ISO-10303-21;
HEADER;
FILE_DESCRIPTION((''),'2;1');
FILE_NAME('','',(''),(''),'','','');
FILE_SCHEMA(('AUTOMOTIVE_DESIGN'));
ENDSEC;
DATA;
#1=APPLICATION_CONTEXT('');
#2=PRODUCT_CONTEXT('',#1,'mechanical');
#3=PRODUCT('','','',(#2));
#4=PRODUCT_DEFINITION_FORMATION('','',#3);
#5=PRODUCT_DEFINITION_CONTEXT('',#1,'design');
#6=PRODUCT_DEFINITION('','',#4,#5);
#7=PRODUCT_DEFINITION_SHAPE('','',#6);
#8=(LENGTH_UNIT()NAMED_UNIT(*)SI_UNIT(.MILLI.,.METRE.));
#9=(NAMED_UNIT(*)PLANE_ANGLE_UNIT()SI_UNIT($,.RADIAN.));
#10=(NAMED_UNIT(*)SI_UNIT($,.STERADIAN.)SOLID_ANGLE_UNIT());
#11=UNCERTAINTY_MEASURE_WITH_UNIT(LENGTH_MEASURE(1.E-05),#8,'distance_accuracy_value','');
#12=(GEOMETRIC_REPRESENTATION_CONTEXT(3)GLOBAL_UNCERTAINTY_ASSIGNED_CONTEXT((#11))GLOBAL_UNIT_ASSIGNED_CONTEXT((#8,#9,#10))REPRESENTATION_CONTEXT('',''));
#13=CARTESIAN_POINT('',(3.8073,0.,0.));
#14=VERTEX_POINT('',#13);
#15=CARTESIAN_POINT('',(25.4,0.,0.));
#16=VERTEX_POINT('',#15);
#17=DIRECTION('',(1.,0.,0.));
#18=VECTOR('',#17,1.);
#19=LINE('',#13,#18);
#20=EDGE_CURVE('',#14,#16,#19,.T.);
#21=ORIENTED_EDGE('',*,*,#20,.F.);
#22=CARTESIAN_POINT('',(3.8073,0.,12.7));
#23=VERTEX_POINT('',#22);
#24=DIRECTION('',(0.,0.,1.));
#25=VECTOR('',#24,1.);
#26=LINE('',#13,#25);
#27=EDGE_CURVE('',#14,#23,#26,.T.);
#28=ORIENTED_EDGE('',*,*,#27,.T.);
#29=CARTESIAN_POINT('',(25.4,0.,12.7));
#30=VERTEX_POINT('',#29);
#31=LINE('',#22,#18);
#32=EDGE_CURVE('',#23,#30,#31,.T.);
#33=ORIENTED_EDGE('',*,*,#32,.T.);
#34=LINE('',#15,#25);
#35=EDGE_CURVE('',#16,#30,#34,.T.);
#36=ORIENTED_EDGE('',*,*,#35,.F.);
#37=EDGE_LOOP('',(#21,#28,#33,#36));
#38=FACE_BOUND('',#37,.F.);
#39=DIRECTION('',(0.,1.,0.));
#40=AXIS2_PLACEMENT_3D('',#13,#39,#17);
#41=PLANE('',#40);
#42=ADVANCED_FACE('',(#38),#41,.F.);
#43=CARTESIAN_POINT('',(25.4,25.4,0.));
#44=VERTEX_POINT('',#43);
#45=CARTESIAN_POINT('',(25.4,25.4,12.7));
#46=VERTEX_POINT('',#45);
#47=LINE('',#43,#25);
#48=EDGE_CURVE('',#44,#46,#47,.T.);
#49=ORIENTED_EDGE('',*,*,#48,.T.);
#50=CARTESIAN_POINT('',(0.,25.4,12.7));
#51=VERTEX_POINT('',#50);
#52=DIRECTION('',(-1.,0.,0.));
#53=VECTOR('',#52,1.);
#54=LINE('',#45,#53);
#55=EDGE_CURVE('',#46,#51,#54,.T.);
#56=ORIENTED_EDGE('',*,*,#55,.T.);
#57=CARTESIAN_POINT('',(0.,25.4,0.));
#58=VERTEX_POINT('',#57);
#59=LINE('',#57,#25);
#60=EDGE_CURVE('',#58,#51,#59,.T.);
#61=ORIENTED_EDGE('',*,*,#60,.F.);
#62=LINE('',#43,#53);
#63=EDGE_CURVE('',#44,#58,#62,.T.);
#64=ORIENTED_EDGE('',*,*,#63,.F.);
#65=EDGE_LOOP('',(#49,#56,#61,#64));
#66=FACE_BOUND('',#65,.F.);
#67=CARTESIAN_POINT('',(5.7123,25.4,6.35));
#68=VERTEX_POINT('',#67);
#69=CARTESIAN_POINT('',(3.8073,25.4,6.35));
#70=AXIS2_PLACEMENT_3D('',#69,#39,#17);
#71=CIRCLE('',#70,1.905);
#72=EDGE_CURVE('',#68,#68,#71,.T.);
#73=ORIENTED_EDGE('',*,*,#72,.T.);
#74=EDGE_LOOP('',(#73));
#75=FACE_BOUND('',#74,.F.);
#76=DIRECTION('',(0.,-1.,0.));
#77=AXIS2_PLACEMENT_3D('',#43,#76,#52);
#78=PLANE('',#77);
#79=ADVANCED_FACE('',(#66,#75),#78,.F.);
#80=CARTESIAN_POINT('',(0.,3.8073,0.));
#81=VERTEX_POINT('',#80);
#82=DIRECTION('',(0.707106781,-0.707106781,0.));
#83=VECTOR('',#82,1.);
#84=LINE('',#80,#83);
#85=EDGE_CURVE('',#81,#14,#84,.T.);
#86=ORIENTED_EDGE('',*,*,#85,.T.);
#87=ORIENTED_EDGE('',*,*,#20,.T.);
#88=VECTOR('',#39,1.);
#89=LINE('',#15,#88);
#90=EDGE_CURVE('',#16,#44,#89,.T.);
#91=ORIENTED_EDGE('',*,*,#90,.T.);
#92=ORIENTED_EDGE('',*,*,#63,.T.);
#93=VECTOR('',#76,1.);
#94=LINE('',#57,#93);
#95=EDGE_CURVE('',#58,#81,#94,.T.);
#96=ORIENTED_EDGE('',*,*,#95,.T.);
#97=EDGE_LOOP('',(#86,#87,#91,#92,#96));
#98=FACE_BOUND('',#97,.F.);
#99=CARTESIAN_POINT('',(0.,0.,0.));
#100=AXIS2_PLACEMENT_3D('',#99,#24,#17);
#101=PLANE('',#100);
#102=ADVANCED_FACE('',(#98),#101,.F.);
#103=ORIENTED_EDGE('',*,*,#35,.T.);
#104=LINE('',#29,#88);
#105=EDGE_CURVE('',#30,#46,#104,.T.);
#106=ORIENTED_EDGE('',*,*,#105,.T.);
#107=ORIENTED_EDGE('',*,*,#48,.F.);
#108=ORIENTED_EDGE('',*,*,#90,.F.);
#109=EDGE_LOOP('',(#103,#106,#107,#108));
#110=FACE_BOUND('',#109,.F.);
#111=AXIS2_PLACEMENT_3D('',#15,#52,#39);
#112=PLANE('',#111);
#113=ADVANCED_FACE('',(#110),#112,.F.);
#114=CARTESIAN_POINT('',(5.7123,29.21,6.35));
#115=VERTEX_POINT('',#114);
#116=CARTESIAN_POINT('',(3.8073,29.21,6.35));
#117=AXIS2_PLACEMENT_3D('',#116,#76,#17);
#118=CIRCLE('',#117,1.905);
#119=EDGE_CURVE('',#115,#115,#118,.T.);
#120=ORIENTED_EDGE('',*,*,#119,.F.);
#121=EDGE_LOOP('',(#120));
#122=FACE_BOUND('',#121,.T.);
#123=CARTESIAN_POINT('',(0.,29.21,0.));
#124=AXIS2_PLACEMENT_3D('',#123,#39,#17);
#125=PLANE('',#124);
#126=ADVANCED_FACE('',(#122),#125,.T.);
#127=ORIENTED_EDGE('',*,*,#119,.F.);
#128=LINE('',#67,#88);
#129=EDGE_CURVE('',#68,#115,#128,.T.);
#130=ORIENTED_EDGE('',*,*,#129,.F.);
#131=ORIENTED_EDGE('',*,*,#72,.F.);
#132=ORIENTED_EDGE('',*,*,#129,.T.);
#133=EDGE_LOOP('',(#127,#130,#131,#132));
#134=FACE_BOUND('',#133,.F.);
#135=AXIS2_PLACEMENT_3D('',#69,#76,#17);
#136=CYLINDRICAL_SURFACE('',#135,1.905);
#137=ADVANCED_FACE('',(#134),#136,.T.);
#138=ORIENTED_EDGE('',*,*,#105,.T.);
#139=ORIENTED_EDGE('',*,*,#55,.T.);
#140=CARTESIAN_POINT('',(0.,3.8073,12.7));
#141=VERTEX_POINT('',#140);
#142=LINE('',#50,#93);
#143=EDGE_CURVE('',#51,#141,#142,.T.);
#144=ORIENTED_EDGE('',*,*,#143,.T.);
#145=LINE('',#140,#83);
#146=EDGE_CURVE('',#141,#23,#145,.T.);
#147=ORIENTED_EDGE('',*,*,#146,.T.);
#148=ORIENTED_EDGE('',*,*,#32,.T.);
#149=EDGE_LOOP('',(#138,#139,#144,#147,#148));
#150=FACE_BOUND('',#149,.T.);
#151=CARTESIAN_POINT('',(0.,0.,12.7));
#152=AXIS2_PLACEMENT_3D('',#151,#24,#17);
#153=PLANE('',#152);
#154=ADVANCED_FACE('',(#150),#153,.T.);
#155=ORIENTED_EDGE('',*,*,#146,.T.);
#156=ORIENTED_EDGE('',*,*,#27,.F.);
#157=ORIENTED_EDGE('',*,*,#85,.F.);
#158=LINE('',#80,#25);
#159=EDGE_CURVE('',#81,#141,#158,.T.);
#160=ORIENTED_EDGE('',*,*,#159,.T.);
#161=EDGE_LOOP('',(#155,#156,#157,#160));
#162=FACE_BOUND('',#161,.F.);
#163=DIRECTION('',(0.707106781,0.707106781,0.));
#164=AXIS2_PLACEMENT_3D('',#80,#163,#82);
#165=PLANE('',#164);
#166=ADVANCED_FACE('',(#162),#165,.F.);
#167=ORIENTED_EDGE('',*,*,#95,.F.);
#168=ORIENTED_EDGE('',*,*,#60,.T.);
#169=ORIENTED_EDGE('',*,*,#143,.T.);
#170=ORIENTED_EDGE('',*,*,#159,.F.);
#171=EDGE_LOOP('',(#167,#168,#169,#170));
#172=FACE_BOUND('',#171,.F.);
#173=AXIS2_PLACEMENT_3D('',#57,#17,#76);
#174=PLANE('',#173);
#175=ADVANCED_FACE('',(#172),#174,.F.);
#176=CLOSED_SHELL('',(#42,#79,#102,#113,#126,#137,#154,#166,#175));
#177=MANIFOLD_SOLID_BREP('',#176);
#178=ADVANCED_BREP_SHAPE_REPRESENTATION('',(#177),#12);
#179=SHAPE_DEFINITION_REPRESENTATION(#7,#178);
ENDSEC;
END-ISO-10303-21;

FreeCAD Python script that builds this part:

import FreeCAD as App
import Part
import Sketcher
Q = App.Units.Quantity


def add_polygon(sketch, points):
    """Adds a closed chain of lines whose ends are joined by coincident constraints."""
    first, n = sketch.GeometryCount, len(points)
    for a, b in zip(points, points[1:] + points[:1]):
        sketch.addGeometry(Part.LineSegment(App.Vector(*a, 0), App.Vector(*b, 0)), False)
    for i in range(n):
        sketch.addConstraint(Sketcher.Constraint("Coincident", first + i, 2, first + (i + 1) % n, 1))

doc = App.newDocument("Part")
body = doc.addObject("PartDesign::Body", "Body")

# Sketch on XY plane
sketch1 = body.newObject("Sketcher::SketchObject", "Sketch")
sketch1.AttachmentSupport = (doc.getObject("XY_Plane"), [""])
sketch1.MapMode = "FlatFace"
add_polygon(sketch1, [(0, 3.8073), (3.8073, 0), (25.4, 0), (25.4, 25.4), (0, 25.4)])  # lines 0-4
sketch1.addConstraint([
    Sketcher.Constraint("Horizontal", 1),
    Sketcher.Constraint("Vertical", 2),
    Sketcher.Constraint("Horizontal", 3),
    Sketcher.Constraint("Vertical", 4),
    Sketcher.Constraint("PointOnObject", 0, 2, -1),
    Sketcher.Constraint("PointOnObject", 3, 2, -2),
    Sketcher.Constraint("Equal", 3, 2),
    Sketcher.Constraint("Equal", 1, 4),
    Sketcher.Constraint("DistanceX", 3, 2, 3, 1, Q("1 in")),
    Sketcher.Constraint("DistanceX", 1, 1, 1, 2, Q("0.8501 in")),
])
pad1 = body.newObject("PartDesign::Pad", "Pad")
pad1.Profile = sketch1
pad1.Length = Q("0.5 in")

# Sketch on XZ plane
sketch2 = body.newObject("Sketcher::SketchObject", "Sketch001")
sketch2.AttachmentSupport = (doc.getObject("XZ_Plane"), [""])
sketch2.MapMode = "FlatFace"
sketch2.AttachmentOffset = App.Placement(App.Vector(0, 0, -1 * 25.4), App.Rotation())
sketch2.addGeometry(Part.Circle(App.Vector(3.8073, 6.35, 0), App.Vector(0, 0, 1), 1.905), False)
sketch2.addConstraint([
    Sketcher.Constraint("Diameter", 0, Q("0.15 in")),
    Sketcher.Constraint("DistanceY", -1, 1, 0, 3, Q("0.25 in")),
    Sketcher.Constraint("DistanceX", -1, 1, 0, 3, Q("0.1499 in")),
])
pad2 = body.newObject("PartDesign::Pad", "Pad001")
pad2.Profile = sketch2
pad2.Length = Q("0.15 in")
pad2.Reversed = True

doc.recompute()
